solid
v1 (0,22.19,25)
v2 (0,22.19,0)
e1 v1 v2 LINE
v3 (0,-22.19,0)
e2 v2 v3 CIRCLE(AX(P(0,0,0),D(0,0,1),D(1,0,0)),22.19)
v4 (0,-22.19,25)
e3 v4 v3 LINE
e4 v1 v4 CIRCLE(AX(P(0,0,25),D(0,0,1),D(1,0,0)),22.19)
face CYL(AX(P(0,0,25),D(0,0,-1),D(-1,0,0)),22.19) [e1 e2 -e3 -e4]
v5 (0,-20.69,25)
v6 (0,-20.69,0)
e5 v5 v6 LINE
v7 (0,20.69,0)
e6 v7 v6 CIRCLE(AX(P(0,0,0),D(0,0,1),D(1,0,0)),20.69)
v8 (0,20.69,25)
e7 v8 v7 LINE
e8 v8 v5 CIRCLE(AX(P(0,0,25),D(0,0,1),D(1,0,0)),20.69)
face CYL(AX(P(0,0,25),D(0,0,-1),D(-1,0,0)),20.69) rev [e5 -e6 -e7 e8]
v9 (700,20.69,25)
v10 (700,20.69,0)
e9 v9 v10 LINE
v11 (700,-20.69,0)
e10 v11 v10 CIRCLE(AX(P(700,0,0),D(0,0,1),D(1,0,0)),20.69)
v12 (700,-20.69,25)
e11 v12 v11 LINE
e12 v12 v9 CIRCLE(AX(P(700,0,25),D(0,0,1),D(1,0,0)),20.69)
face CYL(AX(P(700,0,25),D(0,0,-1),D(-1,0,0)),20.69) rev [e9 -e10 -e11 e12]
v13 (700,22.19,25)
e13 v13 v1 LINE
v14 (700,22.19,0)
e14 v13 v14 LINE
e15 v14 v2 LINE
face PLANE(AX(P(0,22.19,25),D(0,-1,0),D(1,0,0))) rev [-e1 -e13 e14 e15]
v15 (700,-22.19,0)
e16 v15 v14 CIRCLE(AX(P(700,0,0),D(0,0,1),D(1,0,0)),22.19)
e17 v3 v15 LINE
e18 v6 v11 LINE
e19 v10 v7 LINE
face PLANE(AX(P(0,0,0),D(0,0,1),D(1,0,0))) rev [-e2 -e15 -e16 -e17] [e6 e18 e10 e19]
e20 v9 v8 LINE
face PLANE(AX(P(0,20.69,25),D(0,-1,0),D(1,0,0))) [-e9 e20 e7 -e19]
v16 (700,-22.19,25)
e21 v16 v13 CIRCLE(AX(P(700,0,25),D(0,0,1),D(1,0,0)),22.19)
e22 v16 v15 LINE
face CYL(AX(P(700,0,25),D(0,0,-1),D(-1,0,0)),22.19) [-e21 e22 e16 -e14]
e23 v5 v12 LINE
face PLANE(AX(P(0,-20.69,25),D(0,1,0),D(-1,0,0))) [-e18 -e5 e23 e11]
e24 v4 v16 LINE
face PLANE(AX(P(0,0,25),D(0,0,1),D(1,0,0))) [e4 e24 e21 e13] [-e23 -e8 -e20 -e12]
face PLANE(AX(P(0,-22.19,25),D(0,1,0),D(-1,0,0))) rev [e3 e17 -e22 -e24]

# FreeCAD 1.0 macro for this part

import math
import FreeCAD as App
import Part
import Sketcher

V = App.Vector
Q = App.Units.Quantity

doc = App.newDocument("Part")
body = doc.addObject("PartDesign::Body", "Body")

# Sketch on XY plane
sketch1 = body.newObject("Sketcher::SketchObject", "Sketch")
sketch1.AttachmentSupport = (doc.getObject("XY_Plane"), [""])
sketch1.MapMode = "FlatFace"
sketch1.addGeometry(Part.LineSegment(V(0, -22.19, 0), V(700, -22.19, 0)), False)
sketch1.addGeometry(Part.ArcOfCircle(Part.Circle(V(700, 0, 0), V(0, 0, 1), 22.19), math.radians(-90), math.radians(90)), False)
sketch1.addGeometry(Part.LineSegment(V(700, 22.19, 0), V(0, 22.19, 0)), False)
sketch1.addGeometry(Part.ArcOfCircle(Part.Circle(V(0, 0, 0), V(0, 0, 1), 22.19), math.radians(90), math.radians(270)), False)
sketch1.addGeometry(Part.LineSegment(V(700, -20.69, 0), V(0, -20.69, 0)), False)
sketch1.addGeometry(Part.ArcOfCircle(Part.Circle(V(0, 0, 0), V(0, 0, 1), 20.69), math.radians(90), math.radians(270)), False)
sketch1.addGeometry(Part.LineSegment(V(0, 20.69, 0), V(700, 20.69, 0)), False)
sketch1.addGeometry(Part.ArcOfCircle(Part.Circle(V(700, 0, 0), V(0, 0, 1), 20.69), math.radians(-90), math.radians(90)), False)
sketch1.addConstraint(Sketcher.Constraint("Tangent", 0, 2, 1, 1))
sketch1.addConstraint(Sketcher.Constraint("Tangent", 1, 2, 2, 1))
sketch1.addConstraint(Sketcher.Constraint("Tangent", 2, 2, 3, 1))
sketch1.addConstraint(Sketcher.Constraint("Tangent", 3, 2, 0, 1))
sketch1.addConstraint(Sketcher.Constraint("Tangent", 4, 2, 5, 2))
sketch1.addConstraint(Sketcher.Constraint("Tangent", 5, 1, 6, 1))
sketch1.addConstraint(Sketcher.Constraint("Tangent", 6, 2, 7, 2))
sketch1.addConstraint(Sketcher.Constraint("Tangent", 7, 1, 4, 1))
sketch1.addConstraint(Sketcher.Constraint("Horizontal", 0))
sketch1.addConstraint(Sketcher.Constraint("Horizontal", 2))
sketch1.addConstraint(Sketcher.Constraint("Horizontal", 4))
sketch1.addConstraint(Sketcher.Constraint("Horizontal", 6))
sketch1.addConstraint(Sketcher.Constraint("Coincident", 3, 3, -1, 1))
sketch1.addConstraint(Sketcher.Constraint("Coincident", 5, 3, -1, 1))
sketch1.addConstraint(Sketcher.Constraint("Vertical", 7, 3, 0, 2))
sketch1.addConstraint(Sketcher.Constraint("DistanceX", 0, 1, 0, 2, Q("700 mm")))
sketch1.addConstraint(Sketcher.Constraint("Radius", 1, Q("22.19 mm")))
sketch1.addConstraint(Sketcher.Constraint("Radius", 5, Q("20.69 mm")))
pad1 = body.newObject("PartDesign::Pad", "Pad")
pad1.Profile = sketch1
pad1.Length = 25

doc.recompute()
